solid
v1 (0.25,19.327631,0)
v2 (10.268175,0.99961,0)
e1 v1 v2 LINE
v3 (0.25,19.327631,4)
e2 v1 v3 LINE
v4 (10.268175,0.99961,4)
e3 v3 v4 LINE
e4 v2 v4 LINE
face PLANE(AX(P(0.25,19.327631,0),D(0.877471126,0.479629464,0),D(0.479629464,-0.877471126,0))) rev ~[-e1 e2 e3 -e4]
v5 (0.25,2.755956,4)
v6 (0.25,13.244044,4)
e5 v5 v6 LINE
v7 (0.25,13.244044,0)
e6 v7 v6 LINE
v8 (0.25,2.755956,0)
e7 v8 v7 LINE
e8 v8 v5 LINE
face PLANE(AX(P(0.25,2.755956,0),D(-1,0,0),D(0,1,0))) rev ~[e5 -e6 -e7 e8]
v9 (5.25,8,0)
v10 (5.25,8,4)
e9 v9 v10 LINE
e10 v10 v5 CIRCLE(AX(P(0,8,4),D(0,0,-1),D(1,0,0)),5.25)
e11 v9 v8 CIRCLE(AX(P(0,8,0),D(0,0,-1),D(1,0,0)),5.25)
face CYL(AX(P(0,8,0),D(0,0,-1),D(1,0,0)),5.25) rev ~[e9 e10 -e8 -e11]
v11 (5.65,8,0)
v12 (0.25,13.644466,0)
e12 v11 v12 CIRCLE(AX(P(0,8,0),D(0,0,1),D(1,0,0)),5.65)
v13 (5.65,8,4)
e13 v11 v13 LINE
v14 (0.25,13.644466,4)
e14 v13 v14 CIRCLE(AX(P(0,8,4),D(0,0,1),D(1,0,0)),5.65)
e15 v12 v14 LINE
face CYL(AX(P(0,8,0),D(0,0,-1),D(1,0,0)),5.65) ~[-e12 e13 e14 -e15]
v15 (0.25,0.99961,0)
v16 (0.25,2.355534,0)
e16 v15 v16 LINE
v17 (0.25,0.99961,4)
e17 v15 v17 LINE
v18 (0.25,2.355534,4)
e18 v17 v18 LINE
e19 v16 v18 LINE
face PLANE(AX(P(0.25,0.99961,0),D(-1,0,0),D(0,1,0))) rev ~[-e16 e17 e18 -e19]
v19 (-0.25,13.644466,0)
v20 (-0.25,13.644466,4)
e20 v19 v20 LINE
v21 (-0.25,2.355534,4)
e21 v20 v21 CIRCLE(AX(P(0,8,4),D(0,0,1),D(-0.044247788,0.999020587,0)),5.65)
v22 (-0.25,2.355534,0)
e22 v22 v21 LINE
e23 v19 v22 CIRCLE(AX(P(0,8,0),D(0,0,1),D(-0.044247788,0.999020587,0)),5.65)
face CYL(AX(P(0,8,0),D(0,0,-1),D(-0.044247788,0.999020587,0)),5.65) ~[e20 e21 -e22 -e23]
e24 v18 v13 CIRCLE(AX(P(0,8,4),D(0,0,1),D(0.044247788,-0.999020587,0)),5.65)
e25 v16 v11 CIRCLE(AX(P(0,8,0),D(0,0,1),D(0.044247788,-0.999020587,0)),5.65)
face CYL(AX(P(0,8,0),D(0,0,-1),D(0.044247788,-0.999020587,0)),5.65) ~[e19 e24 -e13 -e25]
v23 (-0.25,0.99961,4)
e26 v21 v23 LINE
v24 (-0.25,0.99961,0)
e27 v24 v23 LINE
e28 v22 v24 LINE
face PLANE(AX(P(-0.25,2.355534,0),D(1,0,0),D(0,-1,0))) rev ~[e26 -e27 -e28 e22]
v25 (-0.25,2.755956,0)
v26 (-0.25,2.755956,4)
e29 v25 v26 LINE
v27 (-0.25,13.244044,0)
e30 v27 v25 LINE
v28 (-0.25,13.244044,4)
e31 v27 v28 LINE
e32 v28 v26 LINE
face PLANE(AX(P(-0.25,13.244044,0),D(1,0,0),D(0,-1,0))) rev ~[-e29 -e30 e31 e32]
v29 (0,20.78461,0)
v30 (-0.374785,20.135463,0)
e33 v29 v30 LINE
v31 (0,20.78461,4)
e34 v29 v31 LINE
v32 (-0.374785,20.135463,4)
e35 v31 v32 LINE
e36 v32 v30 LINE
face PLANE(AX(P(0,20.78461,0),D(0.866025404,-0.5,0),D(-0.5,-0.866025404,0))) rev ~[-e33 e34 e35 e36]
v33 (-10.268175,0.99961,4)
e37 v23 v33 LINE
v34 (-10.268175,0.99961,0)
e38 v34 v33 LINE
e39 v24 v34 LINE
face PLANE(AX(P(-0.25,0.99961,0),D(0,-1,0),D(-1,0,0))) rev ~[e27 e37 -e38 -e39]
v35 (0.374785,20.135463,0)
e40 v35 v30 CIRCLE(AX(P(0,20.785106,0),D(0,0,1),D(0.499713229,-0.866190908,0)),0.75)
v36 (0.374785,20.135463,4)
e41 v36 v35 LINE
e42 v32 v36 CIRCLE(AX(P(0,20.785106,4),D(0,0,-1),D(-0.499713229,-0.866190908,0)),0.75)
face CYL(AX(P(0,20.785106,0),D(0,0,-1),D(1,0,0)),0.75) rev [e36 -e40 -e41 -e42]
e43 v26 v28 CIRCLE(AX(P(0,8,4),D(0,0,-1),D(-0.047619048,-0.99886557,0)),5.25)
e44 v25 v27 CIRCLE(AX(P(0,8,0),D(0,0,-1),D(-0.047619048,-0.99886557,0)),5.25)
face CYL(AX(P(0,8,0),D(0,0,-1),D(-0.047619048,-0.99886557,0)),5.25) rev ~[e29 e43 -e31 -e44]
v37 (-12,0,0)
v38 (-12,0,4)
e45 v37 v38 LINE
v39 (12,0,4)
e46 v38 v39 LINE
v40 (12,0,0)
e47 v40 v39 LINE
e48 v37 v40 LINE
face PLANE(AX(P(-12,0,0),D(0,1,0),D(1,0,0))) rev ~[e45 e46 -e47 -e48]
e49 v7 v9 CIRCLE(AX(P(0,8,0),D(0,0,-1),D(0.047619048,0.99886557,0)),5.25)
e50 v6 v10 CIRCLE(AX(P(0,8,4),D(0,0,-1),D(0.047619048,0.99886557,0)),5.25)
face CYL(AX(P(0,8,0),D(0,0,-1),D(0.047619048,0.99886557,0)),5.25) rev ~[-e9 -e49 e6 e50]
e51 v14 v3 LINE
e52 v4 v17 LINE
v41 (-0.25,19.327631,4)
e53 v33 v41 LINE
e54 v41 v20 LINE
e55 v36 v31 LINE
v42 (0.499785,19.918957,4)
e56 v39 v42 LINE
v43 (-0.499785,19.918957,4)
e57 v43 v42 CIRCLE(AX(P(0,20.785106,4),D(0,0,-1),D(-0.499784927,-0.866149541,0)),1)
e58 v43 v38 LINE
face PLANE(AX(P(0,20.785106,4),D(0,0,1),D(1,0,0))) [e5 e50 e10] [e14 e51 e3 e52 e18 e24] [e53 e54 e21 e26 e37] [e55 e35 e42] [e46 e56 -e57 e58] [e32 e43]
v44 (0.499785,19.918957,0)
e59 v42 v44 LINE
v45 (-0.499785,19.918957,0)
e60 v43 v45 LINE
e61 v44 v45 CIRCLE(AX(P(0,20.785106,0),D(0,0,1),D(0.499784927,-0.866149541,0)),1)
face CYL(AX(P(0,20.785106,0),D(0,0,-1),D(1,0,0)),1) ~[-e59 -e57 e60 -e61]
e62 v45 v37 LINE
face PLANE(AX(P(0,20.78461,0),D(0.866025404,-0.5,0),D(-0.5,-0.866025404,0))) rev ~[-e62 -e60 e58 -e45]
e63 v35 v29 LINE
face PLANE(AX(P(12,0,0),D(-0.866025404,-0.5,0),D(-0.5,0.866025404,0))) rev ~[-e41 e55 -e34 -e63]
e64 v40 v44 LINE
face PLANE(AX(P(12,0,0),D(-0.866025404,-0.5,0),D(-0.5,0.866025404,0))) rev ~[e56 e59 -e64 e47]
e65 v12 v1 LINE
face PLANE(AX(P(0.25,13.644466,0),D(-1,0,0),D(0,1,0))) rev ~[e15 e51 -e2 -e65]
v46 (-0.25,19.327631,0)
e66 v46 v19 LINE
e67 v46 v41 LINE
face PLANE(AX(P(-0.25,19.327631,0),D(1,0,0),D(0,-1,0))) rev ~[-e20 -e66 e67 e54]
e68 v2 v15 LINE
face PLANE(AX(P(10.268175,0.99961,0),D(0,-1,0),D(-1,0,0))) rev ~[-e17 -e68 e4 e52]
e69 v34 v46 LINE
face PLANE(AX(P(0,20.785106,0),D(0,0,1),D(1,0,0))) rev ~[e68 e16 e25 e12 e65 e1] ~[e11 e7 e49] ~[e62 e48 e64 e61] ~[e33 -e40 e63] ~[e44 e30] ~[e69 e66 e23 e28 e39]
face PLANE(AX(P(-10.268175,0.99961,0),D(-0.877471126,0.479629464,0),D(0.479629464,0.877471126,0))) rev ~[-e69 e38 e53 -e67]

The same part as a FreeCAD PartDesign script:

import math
import FreeCAD as App
import Part
import Sketcher

V = App.Vector
Q = App.Units.Quantity

doc = App.newDocument("Part")
body = doc.addObject("PartDesign::Body", "Body")

sketch1 = body.newObject("Sketcher::SketchObject", "Sketch")
sketch1.AttachmentSupport = (doc.getObject("XY_Plane"), [""])
sketch1.MapMode = "FlatFace"
sketch1.addGeometry([
    Part.LineSegment(V(-12, 0, 0), V(12, 0, 0)),
    Part.LineSegment(V(12, 0, 0), V(0, 20.78461, 0)),
    Part.LineSegment(V(0, 20.78461, 0), V(-12, 0, 0)),
    Part.LineSegment(V(-0.25, 13.244044, 0), V(-0.25, 2.755956, 0)),
    Part.ArcOfCircle(Part.Circle(V(0, 8, 0), V(0, 0, 1), 5.25), math.radians(92.729403), math.radians(267.270597)),
    Part.ArcOfCircle(Part.Circle(V(0, 8, 0), V(0, 0, 1), 5.25), math.radians(-87.270597), math.radians(0)),
    Part.LineSegment(V(0.25, 2.755956, 0), V(0.25, 13.244044, 0)),
    Part.ArcOfCircle(Part.Circle(V(0, 8, 0), V(0, 0, 1), 5.25), math.radians(0), math.radians(87.270597)),
    Part.LineSegment(V(-0.25, 2.355534, 0), V(-0.25, 0.99961, 0)),
    Part.LineSegment(V(-0.25, 0.99961, 0), V(-10.268175, 0.99961, 0)),
    Part.LineSegment(V(-10.268175, 0.99961, 0), V(-0.25, 19.327631, 0)),
    Part.LineSegment(V(-0.25, 19.327631, 0), V(-0.25, 13.644466, 0)),
    Part.ArcOfCircle(Part.Circle(V(0, 8, 0), V(0, 0, 1), 5.65), math.radians(92.536039), math.radians(267.463961)),
    Part.LineSegment(V(0.25, 0.99961, 0), V(0.25, 2.355534, 0)),
    Part.ArcOfCircle(Part.Circle(V(0, 8, 0), V(0, 0, 1), 5.65), math.radians(-87.463961), math.radians(0)),
    Part.ArcOfCircle(Part.Circle(V(0, 8, 0), V(0, 0, 1), 5.65), math.radians(0), math.radians(87.463961)),
    Part.LineSegment(V(0.25, 13.644466, 0), V(0.25, 19.327631, 0)),
    Part.LineSegment(V(0.25, 19.327631, 0), V(10.268175, 0.99961, 0)),
    Part.LineSegment(V(10.268175, 0.99961, 0), V(0.25, 0.99961, 0)),
], False)
sketch1.addConstraint([
    Sketcher.Constraint("Coincident", 0, 2, 1, 1),
    Sketcher.Constraint("Coincident", 1, 2, 2, 1),
    Sketcher.Constraint("Coincident", 2, 2, 0, 1),
    Sketcher.Constraint("Coincident", 3, 1, 4, 1),
    Sketcher.Constraint("Coincident", 4, 2, 3, 2),
    Sketcher.Constraint("Coincident", 5, 1, 6, 1),
    Sketcher.Constraint("Coincident", 6, 2, 7, 2),
    Sketcher.Constraint("Tangent", 7, 1, 5, 2),
    Sketcher.Constraint("Coincident", 8, 2, 9, 1),
    Sketcher.Constraint("Coincident", 9, 2, 10, 1),
    Sketcher.Constraint("Coincident", 10, 2, 11, 1),
    Sketcher.Constraint("Coincident", 11, 2, 12, 1),
    Sketcher.Constraint("Coincident", 12, 2, 8, 1),
    Sketcher.Constraint("Coincident", 13, 2, 14, 1),
    Sketcher.Constraint("Tangent", 14, 2, 15, 1),
    Sketcher.Constraint("Coincident", 15, 2, 16, 1),
    Sketcher.Constraint("Coincident", 16, 2, 17, 1),
    Sketcher.Constraint("Coincident", 17, 2, 18, 1),
    Sketcher.Constraint("Coincident", 18, 2, 13, 1),
    Sketcher.Constraint("Horizontal", 0),
    Sketcher.Constraint("Vertical", 3),
    Sketcher.Constraint("Vertical", 6),
    Sketcher.Constraint("Vertical", 8),
    Sketcher.Constraint("Horizontal", 9),
    Sketcher.Constraint("Vertical", 11),
    Sketcher.Constraint("Vertical", 13),
    Sketcher.Constraint("Vertical", 16),
    Sketcher.Constraint("Horizontal", 18),
    Sketcher.Constraint("Coincident", 5, 3, 4, 3),
    Sketcher.Constraint("Coincident", 12, 3, 4, 3),
    Sketcher.Constraint("Coincident", 14, 3, 4, 3),
    Sketcher.Constraint("Equal", 4, 5),
    Sketcher.Constraint("Equal", 5, 7),
    Sketcher.Constraint("Equal", 12, 14),
    Sketcher.Constraint("Equal", 14, 15),
    Sketcher.Constraint("Symmetric", 0, 2, 2, 2, -1, 1),
    Sketcher.Constraint("Symmetric", 4, 2, 5, 1, -2),
    Sketcher.Constraint("Symmetric", 10, 2, 16, 2, -2),
    Sketcher.Constraint("Symmetric", 9, 2, 17, 2, -2),
    Sketcher.Constraint("PointOnObject", 1, 2, -2),
    Sketcher.Constraint("Horizontal", 15, 3, 7, 1),
    Sketcher.Constraint("Horizontal", 12, 2, 13, 2),
    Sketcher.Constraint("Horizontal", 7, 1, 14, 2),
    Sketcher.Constraint("Vertical", 4, 2, 8, 2),
    Sketcher.Constraint("Vertical", 8, 2, 10, 2),
    Sketcher.Constraint("DistanceX", 0, 1, 0, 2, 24.0),
    Sketcher.Constraint("Angle", 1, Q("120 deg")),
    Sketcher.Constraint("Radius", 4, 5.25),
    Sketcher.Constraint("Radius", 12, 5.65),
    Sketcher.Constraint("DistanceY", -1, 1, 4, 3, 8.0),
    Sketcher.Constraint("DistanceX", 4, 2, 5, 1, 0.5),
    Sketcher.Constraint("Distance", 10, 20.887321),
    Sketcher.Constraint("DistanceX", 9, 2, 9, 1, 10.018175),
    Sketcher.Constraint("DistanceY", 8, 2, 8, 1, 1.355924),
])
pad1 = body.newObject("PartDesign::Pad", "Pad")
pad1.Profile = sketch1
pad1.Length = 4

sketch2 = body.newObject("Sketcher::SketchObject", "Sketch001")
sketch2.AttachmentSupport = (doc.getObject("XY_Plane"), [""])
sketch2.MapMode = "FlatFace"
sketch2.addGeometry([
    Part.Circle(V(0, 20.785106, 0), V(0, 0, 1), 1),
    Part.Circle(V(0, 20.785106, 0), V(0, 0, 1), 0.75),
], False)
sketch2.addConstraint([
    Sketcher.Constraint("Coincident", 1, 3, 0, 3),
    Sketcher.Constraint("PointOnObject", 0, 3, -2),
    Sketcher.Constraint("Diameter", 0, 2.0),
    Sketcher.Constraint("Diameter", 1, 1.5),
    Sketcher.Constraint("DistanceY", -1, 1, 0, 3, 20.785106),
])
pad2 = body.newObject("PartDesign::Pad", "Pad001")
pad2.Profile = sketch2
pad2.Length = 4

doc.recompute()
